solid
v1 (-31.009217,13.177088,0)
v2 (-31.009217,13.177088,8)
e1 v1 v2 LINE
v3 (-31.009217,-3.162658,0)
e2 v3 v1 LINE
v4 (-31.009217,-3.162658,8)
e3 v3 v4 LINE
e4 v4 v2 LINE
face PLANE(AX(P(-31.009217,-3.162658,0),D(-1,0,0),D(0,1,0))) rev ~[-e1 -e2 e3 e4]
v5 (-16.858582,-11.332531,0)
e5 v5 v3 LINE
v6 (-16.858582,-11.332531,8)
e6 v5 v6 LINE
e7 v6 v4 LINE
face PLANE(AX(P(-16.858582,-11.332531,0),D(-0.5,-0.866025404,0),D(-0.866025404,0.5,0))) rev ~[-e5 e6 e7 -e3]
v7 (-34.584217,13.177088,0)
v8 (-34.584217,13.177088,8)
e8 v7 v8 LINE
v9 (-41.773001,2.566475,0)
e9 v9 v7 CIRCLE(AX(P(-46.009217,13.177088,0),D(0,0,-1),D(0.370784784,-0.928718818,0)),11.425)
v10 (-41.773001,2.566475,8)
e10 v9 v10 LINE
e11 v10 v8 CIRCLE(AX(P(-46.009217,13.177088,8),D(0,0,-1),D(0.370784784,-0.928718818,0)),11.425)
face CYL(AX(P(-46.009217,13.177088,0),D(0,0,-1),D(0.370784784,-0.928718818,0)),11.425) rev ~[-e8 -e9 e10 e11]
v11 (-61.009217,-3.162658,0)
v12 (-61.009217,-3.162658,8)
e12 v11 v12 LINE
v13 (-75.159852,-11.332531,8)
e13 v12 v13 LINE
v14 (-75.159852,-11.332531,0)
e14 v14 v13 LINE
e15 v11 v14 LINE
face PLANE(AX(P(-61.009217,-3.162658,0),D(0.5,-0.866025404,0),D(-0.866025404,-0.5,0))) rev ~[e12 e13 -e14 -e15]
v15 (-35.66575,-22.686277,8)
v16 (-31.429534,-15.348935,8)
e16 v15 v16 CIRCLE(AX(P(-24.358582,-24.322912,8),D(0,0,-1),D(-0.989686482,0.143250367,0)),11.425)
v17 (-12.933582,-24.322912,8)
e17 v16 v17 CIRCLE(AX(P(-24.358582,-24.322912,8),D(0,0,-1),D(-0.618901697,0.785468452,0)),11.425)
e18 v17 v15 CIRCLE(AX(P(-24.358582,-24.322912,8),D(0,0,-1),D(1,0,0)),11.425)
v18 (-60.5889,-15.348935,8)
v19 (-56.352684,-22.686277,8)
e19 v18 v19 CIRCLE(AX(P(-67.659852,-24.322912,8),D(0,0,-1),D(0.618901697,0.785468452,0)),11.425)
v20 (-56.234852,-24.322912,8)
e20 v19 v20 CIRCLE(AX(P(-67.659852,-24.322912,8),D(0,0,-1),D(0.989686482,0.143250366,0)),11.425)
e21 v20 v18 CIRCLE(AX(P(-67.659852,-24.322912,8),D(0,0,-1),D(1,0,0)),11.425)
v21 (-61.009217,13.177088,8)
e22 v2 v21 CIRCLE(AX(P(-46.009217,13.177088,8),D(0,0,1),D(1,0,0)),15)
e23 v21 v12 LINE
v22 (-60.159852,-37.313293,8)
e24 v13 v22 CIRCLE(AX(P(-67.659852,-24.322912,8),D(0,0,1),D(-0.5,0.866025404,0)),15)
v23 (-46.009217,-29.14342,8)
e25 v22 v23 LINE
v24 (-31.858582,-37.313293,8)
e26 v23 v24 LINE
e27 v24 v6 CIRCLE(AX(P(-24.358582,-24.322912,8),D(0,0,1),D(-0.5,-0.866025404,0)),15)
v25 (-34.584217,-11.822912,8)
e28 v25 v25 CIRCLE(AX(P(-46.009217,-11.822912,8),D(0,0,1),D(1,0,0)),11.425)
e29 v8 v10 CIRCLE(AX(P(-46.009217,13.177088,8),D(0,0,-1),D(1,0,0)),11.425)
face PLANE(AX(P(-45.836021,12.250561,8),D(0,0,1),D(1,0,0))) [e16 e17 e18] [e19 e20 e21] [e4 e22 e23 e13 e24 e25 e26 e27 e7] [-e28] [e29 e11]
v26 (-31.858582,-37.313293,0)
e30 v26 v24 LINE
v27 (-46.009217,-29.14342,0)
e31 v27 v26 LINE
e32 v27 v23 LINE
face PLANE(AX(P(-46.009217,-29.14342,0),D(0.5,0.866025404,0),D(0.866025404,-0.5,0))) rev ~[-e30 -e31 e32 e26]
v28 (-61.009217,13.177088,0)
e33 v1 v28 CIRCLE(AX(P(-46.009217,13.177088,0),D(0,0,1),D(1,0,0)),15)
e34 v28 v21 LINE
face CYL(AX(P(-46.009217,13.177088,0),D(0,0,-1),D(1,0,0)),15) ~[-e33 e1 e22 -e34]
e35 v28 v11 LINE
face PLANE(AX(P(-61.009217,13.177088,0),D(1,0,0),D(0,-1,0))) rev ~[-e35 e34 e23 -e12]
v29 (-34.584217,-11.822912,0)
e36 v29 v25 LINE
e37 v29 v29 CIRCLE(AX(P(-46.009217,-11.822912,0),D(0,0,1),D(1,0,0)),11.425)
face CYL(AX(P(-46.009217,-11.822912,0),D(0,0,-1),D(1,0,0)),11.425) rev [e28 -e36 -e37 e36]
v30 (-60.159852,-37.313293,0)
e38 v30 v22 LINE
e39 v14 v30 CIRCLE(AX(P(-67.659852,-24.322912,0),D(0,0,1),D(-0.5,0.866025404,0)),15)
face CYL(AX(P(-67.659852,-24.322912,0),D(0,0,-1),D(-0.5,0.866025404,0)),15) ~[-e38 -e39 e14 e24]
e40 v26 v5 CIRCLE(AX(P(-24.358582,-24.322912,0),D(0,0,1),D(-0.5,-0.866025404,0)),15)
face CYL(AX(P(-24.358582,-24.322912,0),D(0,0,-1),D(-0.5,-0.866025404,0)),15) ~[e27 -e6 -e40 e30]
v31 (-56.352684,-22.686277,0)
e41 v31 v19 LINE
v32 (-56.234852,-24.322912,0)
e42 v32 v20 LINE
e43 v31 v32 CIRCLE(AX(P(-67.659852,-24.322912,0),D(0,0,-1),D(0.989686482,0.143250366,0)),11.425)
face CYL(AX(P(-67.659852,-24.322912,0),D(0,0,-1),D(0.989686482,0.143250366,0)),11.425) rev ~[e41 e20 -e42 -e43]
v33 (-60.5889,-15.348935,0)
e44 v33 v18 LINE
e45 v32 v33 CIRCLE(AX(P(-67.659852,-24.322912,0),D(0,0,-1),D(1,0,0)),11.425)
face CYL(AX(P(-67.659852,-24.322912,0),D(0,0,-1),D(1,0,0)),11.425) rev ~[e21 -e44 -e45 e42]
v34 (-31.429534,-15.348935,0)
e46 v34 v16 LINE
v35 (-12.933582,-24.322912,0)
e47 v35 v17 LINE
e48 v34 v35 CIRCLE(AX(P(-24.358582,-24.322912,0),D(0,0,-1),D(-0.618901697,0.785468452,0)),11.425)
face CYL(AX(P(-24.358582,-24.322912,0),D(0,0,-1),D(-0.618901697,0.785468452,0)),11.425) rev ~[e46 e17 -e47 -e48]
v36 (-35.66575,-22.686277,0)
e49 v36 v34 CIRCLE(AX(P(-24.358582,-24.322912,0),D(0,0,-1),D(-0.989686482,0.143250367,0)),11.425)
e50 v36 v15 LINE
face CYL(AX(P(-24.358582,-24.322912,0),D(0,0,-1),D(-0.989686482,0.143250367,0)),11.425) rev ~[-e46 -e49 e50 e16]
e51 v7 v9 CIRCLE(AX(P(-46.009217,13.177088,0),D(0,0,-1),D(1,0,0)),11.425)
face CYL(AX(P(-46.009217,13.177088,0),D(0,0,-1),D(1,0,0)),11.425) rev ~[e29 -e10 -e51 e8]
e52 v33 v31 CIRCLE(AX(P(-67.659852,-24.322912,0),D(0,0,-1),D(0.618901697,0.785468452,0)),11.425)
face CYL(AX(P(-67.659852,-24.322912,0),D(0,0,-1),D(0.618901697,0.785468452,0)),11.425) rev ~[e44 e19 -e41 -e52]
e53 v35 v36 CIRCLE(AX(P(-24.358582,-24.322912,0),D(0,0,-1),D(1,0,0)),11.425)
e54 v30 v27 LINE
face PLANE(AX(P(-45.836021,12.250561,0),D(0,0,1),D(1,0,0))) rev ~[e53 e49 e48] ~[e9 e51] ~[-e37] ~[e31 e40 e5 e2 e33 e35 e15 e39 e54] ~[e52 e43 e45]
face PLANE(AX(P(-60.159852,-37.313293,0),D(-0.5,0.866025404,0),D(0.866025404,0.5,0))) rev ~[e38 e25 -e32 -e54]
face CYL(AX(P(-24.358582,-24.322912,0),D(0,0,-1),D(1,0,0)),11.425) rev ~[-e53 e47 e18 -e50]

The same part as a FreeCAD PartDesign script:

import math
import FreeCAD as App
import Part
import Sketcher

V = App.Vector
Q = App.Units.Quantity

doc = App.newDocument("Part")
params = doc.addObject("Spreadsheet::Sheet", "Params")
for row, (alias, value) in enumerate([
    ("sketch1_radius", "15 mm"),
    ("sketch1_diameter", "22.85 mm"),
    ("pad1_length", "8 mm"),
], start=1):
    params.set(f"A{row}", alias)
    params.set(f"B{row}", "=" + value)
    params.setAlias(f"B{row}", alias)

body = doc.addObject("PartDesign::Body", "Body")

sketch1 = body.newObject("Sketcher::SketchObject", "Sketch")
sketch1.AttachmentSupport = (doc.getObject("XY_Plane"), [""])
sketch1.MapMode = "FlatFace"
sketch1.addGeometry(Part.LineSegment(V(-60.2, -37.3, 0), V(-46, -29.1, 0)), False)
sketch1.addGeometry(Part.LineSegment(V(-46, -29.1, 0), V(-31.9, -37.3, 0)), False)
sketch1.addGeometry(Part.ArcOfCircle(Part.Circle(V(-24.4, -24.3, 0), V(0, 0, 1), 15), math.radians(-120), math.radians(60)), False)
sketch1.addGeometry(Part.LineSegment(V(-16.9, -11.3, 0), V(-31, -3.2, 0)), False)
sketch1.addGeometry(Part.LineSegment(V(-31, -3.2, 0), V(-31, 13.2, 0)), False)
sketch1.addGeometry(Part.ArcOfCircle(Part.Circle(V(-46, 13.2, 0), V(0, 0, 1), 15), math.radians(0), math.radians(180)), False)
sketch1.addGeometry(Part.LineSegment(V(-61, 13.2, 0), V(-61, -3.2, 0)), False)
sketch1.addGeometry(Part.LineSegment(V(-61, -3.2, 0), V(-75.2, -11.3, 0)), False)
sketch1.addGeometry(Part.ArcOfCircle(Part.Circle(V(-67.7, -24.3, 0), V(0, 0, 1), 15), math.radians(120), math.radians(300)), False)
sketch1.addGeometry(Part.ArcOfCircle(Part.Circle(V(-67.7, -24.3, 0), V(0, 0, 1), 11.4), math.radians(0), math.radians(8.24)), False)
sketch1.addGeometry(Part.ArcOfCircle(Part.Circle(V(-67.7, -24.3, 0), V(0, 0, 1), 11.4), math.radians(52), math.radians(360)), False)
sketch1.addGeometry(Part.ArcOfCircle(Part.Circle(V(-67.7, -24.3, 0), V(0, 0, 1), 11.4), math.radians(8), math.radians(52)), False)
sketch1.addGeometry(Part.Circle(V(-46, -11.8, 0), V(0, 0, 1), 11.4), False)
sketch1.addGeometry(Part.ArcOfCircle(Part.Circle(V(-24.4, -24.3, 0), V(0, 0, 1), 11.4), math.radians(0), math.radians(128)), False)
sketch1.addGeometry(Part.ArcOfCircle(Part.Circle(V(-24.4, -24.3, 0), V(0, 0, 1), 11.4), math.radians(172), math.radians(360)), False)
sketch1.addGeometry(Part.ArcOfCircle(Part.Circle(V(-24.4, -24.3, 0), V(0, 0, 1), 11.4), math.radians(128), math.radians(172)), False)
sketch1.addGeometry(Part.ArcOfCircle(Part.Circle(V(-46, 13.2, 0), V(0, 0, 1), 11.4), math.radians(-68), math.radians(0)), False)
sketch1.addGeometry(Part.ArcOfCircle(Part.Circle(V(-46, 13.2, 0), V(0, 0, 1), 11.4), math.radians(0), math.radians(292)), False)
sketch1.addConstraint(Sketcher.Constraint("Coincident", 0, 2, 1, 1))
sketch1.addConstraint(Sketcher.Constraint("Tangent", 1, 2, 2, 1))
sketch1.addConstraint(Sketcher.Constraint("Tangent", 2, 2, 3, 1))
sketch1.addConstraint(Sketcher.Constraint("Coincident", 3, 2, 4, 1))
sketch1.addConstraint(Sketcher.Constraint("Tangent", 4, 2, 5, 1))
sketch1.addConstraint(Sketcher.Constraint("Tangent", 5, 2, 6, 1))
sketch1.addConstraint(Sketcher.Constraint("Coincident", 6, 2, 7, 1))
sketch1.addConstraint(Sketcher.Constraint("Tangent", 7, 2, 8, 1))
sketch1.addConstraint(Sketcher.Constraint("Tangent", 8, 2, 0, 1))
sketch1.addConstraint(Sketcher.Constraint("Tangent", 9, 1, 10, 2))
sketch1.addConstraint(Sketcher.Constraint("Tangent", 10, 1, 11, 2))
sketch1.addConstraint(Sketcher.Constraint("Tangent", 11, 1, 9, 2))
sketch1.addConstraint(Sketcher.Constraint("Tangent", 13, 1, 14, 2))
sketch1.addConstraint(Sketcher.Constraint("Tangent", 14, 1, 15, 2))
sketch1.addConstraint(Sketcher.Constraint("Tangent", 15, 1, 13, 2))
sketch1.addConstraint(Sketcher.Constraint("Tangent", 16, 1, 17, 2))
sketch1.addConstraint(Sketcher.Constraint("Coincident", 17, 1, 16, 2))
sketch1.addConstraint(Sketcher.Constraint("Vertical", 4))
sketch1.addConstraint(Sketcher.Constraint("Vertical", 6))
sketch1.addConstraint(Sketcher.Constraint("Coincident", 9, 3, 8, 3))
sketch1.addConstraint(Sketcher.Constraint("Coincident", 13, 3, 2, 3))
sketch1.addConstraint(Sketcher.Constraint("Coincident", 16, 3, 5, 3))
sketch1.addConstraint(Sketcher.Constraint("Equal", 2, 5))
sketch1.addConstraint(Sketcher.Constraint("Equal", 5, 8))
sketch1.addConstraint(Sketcher.Constraint("Equal", 11, 12))
sketch1.addConstraint(Sketcher.Constraint("Equal", 12, 13))
sketch1.addConstraint(Sketcher.Constraint("Equal", 15, 16))
sketch1.addConstraint(Sketcher.Constraint("Parallel", 1, 3))
sketch1.addConstraint(Sketcher.Constraint("Parallel", 0, 7))
sketch1.addConstraint(Sketcher.Constraint("Horizontal", 2, 3, 8, 3))
sketch1.addConstraint(Sketcher.Constraint("Horizontal", 3, 2, 6, 2))
sketch1.addConstraint(Sketcher.Constraint("Horizontal", 2, 2, 7, 2))
sketch1.addConstraint(Sketcher.Constraint("Horizontal", 15, 3, 9, 1))
sketch1.addConstraint(Sketcher.Constraint("Horizontal", 9, 1, 13, 1))
sketch1.addConstraint(Sketcher.Constraint("Horizontal", 11, 1, 14, 1))
sketch1.addConstraint(Sketcher.Constraint("Horizontal", 10, 1, 15, 1))
sketch1.addConstraint(Sketcher.Constraint("Horizontal", 5, 2, 17, 1))
sketch1.addConstraint(Sketcher.Constraint("Vertical", 5, 3, 12, 3))
sketch1.addConstraint(Sketcher.Constraint("Equal", 1, 3))
sketch1.addConstraint(Sketcher.Constraint("Radius", 2, Q("15 mm")))
sketch1.addConstraint(Sketcher.Constraint("Diameter", 12, Q("22.85 mm")))
sketch1.addConstraint(Sketcher.Constraint("DistanceY", 12, 3, 5, 3, Q("25 mm")))
sketch1.addConstraint(Sketcher.Constraint("DistanceY", 2, 3, 5, 3, Q("37.5 mm")))
sketch1.addConstraint(Sketcher.Constraint("DistanceX", 16, 1, -1, 1, Q("41.773001 mm")))
sketch1.addConstraint(Sketcher.Constraint("DistanceX", 10, 1, -1, 1, Q("60.5889 mm")))
sketch1.addConstraint(Sketcher.Constraint("DistanceY", 4, 1, 4, 2, Q("16.339746 mm")))
sketch1.addConstraint(Sketcher.Constraint("DistanceX", 2, 3, -1, 1, Q("24.358582 mm")))
sketch1.addConstraint(Sketcher.Constraint("DistanceY", 0, 2, -1, 1, Q("29.14342 mm")))
sketch1.addConstraint(Sketcher.Constraint("DistanceX", 14, 1, -1, 1, Q("35.66575 mm")))
sketch1.setExpression("Constraints[39]", "Params.sketch1_radius")
sketch1.setExpression("Constraints[40]", "Params.sketch1_diameter")
pad1 = body.newObject("PartDesign::Pad", "Pad")
pad1.Profile = sketch1
pad1.setExpression("Length", "Params.pad1_length")

doc.recompute()
